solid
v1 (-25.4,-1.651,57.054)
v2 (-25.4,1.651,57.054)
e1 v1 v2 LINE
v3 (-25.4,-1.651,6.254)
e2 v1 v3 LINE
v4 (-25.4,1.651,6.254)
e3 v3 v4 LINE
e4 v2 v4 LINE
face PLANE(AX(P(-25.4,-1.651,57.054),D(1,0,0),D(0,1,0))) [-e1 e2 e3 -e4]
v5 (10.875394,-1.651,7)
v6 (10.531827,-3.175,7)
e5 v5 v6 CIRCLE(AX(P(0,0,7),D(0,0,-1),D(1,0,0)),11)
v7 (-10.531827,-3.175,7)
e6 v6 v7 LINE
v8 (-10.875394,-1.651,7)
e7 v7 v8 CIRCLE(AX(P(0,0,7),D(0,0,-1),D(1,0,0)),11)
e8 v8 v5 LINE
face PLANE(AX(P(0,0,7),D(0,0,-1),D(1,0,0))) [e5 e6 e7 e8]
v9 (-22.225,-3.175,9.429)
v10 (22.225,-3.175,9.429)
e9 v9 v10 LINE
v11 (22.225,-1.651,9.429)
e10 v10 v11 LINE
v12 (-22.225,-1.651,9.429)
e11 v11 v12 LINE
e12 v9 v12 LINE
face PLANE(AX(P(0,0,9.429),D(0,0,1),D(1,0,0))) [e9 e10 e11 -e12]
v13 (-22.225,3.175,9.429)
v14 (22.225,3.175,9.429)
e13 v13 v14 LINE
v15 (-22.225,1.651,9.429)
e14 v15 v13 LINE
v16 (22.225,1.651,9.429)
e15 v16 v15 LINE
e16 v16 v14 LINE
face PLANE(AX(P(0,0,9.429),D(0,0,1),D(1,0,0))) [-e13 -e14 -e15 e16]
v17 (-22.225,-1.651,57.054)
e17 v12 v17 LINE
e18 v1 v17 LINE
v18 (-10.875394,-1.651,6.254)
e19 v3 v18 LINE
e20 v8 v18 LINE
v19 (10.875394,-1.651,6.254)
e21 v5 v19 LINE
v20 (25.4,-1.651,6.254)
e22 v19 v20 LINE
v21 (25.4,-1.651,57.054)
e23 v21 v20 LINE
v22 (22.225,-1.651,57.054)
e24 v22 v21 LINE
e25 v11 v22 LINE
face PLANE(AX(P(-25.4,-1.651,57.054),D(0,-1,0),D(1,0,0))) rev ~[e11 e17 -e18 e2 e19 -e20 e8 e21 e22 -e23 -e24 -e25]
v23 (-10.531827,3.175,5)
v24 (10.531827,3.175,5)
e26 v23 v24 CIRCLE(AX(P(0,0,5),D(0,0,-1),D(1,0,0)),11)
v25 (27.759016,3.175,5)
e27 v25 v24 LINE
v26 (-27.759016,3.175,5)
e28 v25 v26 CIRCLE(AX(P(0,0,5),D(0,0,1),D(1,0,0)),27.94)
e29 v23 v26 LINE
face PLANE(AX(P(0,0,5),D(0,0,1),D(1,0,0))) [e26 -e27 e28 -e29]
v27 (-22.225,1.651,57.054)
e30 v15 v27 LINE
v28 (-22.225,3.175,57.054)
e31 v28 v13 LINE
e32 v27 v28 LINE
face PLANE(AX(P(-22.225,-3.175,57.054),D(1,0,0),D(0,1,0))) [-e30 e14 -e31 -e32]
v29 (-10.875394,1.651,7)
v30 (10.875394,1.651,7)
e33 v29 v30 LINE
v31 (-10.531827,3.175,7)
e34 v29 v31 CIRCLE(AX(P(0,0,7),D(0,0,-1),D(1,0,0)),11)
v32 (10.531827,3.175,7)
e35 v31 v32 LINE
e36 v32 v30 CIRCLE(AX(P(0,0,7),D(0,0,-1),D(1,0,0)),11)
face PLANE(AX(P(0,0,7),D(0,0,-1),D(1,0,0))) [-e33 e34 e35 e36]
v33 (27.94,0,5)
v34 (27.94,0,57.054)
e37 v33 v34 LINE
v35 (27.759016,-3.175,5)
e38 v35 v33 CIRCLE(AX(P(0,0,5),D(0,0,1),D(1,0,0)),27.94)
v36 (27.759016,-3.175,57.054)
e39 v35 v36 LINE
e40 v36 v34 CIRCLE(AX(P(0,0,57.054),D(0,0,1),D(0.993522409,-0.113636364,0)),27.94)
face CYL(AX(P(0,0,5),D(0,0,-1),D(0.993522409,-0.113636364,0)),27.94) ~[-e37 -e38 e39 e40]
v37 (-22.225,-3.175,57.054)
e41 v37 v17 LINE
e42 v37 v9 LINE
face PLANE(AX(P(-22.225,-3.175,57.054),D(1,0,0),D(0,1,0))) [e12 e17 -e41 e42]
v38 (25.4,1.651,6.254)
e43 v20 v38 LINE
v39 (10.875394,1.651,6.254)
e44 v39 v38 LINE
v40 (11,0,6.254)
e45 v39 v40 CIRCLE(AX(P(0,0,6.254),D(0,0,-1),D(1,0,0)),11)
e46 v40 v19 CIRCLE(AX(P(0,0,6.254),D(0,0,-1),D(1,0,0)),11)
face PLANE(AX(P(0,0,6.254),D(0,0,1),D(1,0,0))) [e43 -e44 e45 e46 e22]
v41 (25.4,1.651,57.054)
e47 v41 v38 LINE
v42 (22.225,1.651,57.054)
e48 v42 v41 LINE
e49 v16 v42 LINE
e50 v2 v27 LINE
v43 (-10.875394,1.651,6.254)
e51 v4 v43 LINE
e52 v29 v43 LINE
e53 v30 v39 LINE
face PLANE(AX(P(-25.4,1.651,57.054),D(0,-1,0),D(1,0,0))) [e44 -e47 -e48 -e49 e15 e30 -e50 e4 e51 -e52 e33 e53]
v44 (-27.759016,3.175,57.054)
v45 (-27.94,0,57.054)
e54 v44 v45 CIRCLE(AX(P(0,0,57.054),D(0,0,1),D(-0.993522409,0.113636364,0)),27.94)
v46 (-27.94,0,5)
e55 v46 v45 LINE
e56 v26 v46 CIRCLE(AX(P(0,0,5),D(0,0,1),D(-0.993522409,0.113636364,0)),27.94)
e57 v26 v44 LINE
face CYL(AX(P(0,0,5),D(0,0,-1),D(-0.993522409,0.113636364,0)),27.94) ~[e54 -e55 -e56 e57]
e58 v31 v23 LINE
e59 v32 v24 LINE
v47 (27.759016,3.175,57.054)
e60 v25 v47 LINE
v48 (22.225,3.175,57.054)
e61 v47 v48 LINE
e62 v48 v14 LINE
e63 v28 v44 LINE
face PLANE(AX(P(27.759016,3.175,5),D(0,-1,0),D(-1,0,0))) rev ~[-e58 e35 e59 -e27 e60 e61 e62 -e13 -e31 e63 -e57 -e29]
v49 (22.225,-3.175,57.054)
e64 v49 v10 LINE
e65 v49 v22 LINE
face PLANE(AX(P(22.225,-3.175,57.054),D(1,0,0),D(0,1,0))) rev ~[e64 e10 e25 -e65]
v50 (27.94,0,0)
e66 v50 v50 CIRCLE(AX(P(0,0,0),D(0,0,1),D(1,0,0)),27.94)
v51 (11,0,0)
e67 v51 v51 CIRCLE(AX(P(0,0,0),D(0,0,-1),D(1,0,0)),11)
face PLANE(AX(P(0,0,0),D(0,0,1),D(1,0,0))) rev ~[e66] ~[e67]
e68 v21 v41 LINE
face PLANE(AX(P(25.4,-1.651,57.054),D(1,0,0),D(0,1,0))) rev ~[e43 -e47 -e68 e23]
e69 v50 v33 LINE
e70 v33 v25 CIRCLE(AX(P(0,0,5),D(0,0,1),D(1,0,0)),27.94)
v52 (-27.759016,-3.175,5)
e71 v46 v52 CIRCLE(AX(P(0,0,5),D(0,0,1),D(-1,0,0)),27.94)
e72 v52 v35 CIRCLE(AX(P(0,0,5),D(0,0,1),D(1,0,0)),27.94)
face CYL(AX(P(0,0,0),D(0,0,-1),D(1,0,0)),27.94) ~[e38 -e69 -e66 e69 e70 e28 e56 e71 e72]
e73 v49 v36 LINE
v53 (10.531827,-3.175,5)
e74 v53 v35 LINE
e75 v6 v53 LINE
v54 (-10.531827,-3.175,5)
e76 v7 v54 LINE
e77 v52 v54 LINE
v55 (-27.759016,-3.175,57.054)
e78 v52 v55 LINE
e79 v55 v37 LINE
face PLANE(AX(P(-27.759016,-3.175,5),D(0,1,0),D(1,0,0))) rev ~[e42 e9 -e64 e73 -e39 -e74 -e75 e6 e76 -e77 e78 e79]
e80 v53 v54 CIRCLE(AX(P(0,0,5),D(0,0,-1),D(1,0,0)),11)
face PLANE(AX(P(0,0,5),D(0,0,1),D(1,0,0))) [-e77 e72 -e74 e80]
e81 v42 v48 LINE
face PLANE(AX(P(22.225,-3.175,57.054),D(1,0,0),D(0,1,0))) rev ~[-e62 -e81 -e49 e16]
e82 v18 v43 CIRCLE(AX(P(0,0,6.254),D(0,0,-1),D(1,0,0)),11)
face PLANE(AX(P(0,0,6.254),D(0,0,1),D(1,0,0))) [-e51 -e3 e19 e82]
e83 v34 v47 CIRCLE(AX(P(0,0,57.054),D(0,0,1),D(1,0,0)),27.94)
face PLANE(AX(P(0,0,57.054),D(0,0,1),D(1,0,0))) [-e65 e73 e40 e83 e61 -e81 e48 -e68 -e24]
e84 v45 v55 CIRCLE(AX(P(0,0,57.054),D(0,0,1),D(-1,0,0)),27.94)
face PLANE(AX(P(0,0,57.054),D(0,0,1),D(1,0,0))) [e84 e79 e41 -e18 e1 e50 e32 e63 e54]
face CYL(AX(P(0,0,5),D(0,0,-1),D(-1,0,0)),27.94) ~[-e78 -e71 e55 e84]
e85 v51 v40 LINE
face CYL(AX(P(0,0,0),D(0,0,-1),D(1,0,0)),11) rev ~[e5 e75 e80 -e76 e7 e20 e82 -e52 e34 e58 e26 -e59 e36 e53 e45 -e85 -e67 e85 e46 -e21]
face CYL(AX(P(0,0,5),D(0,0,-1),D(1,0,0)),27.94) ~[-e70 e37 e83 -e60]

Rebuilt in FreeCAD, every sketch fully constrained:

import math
import FreeCAD as App
import Part
import Sketcher
Q = App.Units.Quantity

doc = App.newDocument("Part")
body = doc.addObject("PartDesign::Body", "Body")

# Sketch on XY plane
sketch1 = doc.addObject("Sketcher::SketchObject", "Sketch")
body.addObject(sketch1)
sketch1.AttachmentSupport = (doc.XY_Plane, [""])
sketch1.MapMode = "FlatFace"
sketch1.addGeometry(Part.Circle(App.Vector(0, 0, 0), App.Vector(0, 0, 1), 28), False)
sketch1.addConstraint(Sketcher.Constraint("Coincident", 0, 3, -1, 1))
sketch1.addConstraint(Sketcher.Constraint("Diameter", 0, Q("2.2 in")))
pad1 = doc.addObject("PartDesign::Pad", "Pad")
body.addObject(pad1)
pad1.Profile = sketch1
pad1.Length = 5

# Sketch on XY plane
sketch2 = doc.addObject("Sketcher::SketchObject", "Sketch001")
body.addObject(sketch2)
sketch2.AttachmentSupport = (doc.XY_Plane, [""])
sketch2.MapMode = "FlatFace"
sketch2.AttachmentOffset = App.Placement(App.Vector(0, 0, 5), App.Rotation())
sketch2.addGeometry(Part.ArcOfCircle(Part.Circle(App.Vector(0, 0, 0), App.Vector(0, 0, 1), 27.9), math.radians(0), math.radians(6.52)), False)
sketch2.addGeometry(Part.LineSegment(App.Vector(27.8, 3.2, 0), App.Vector(-27.8, 3.2, 0)), False)
sketch2.addGeometry(Part.ArcOfCircle(Part.Circle(App.Vector(0, 0, 0), App.Vector(0, 0, 1), 27.9), math.radians(173.48), math.radians(180)), False)
sketch2.addGeometry(Part.ArcOfCircle(Part.Circle(App.Vector(0, 0, 0), App.Vector(0, 0, 1), 27.9), math.radians(180), math.radians(186.52)), False)
sketch2.addGeometry(Part.LineSegment(App.Vector(-27.8, -3.2, 0), App.Vector(27.8, -3.2, 0)), False)
sketch2.addGeometry(Part.ArcOfCircle(Part.Circle(App.Vector(0, 0, 0), App.Vector(0, 0, 1), 27.9), math.radians(-6.52), math.radians(0)), False)
sketch2.addConstraint(Sketcher.Constraint("Coincident", 0, 2, 1, 1))
sketch2.addConstraint(Sketcher.Constraint("Coincident", 1, 2, 2, 1))
sketch2.addConstraint(Sketcher.Constraint("Tangent", 2, 2, 3, 1))
sketch2.addConstraint(Sketcher.Constraint("Coincident", 3, 2, 4, 1))
sketch2.addConstraint(Sketcher.Constraint("Coincident", 4, 2, 5, 1))
sketch2.addConstraint(Sketcher.Constraint("Tangent", 5, 2, 0, 1))
sketch2.addConstraint(Sketcher.Constraint("Horizontal", 1))
sketch2.addConstraint(Sketcher.Constraint("Horizontal", 4))
sketch2.addConstraint(Sketcher.Constraint("Coincident", 0, 3, -1, 1))
sketch2.addConstraint(Sketcher.Constraint("Coincident", 2, 3, -1, 1))
sketch2.addConstraint(Sketcher.Constraint("Equal", 0, 2))
sketch2.addConstraint(Sketcher.Constraint("Equal", 2, 3))
sketch2.addConstraint(Sketcher.Constraint("Equal", 3, 5))
sketch2.addConstraint(Sketcher.Constraint("PointOnObject", 2, 2, -1))
sketch2.addConstraint(Sketcher.Constraint("PointOnObject", 5, 2, -1))
sketch2.addConstraint(Sketcher.Constraint("Vertical", 1, 2, 3, 2))
sketch2.addConstraint(Sketcher.Constraint("Radius", 0, Q("1.1 in")))
sketch2.addConstraint(Sketcher.Constraint("DistanceY", 3, 2, 1, 2, Q("0.25 in")))
pad2 = doc.addObject("PartDesign::Pad", "Pad001")
body.addObject(pad2)
pad2.Profile = sketch2
pad2.Length = 52.054

# Sketch on XY plane
sketch3 = doc.addObject("Sketcher::SketchObject", "Sketch002")
body.addObject(sketch3)
sketch3.AttachmentSupport = (doc.XY_Plane, [""])
sketch3.MapMode = "FlatFace"
sketch3.AttachmentOffset = App.Placement(App.Vector(0, 0, 57.054), App.Rotation())
sketch3.addGeometry(Part.LineSegment(App.Vector(-25.4, 1.7, 0), App.Vector(-25.4, -1.7, 0)), False)
sketch3.addGeometry(Part.LineSegment(App.Vector(-25.4, -1.7, 0), App.Vector(25.4, -1.7, 0)), False)
sketch3.addGeometry(Part.LineSegment(App.Vector(25.4, -1.7, 0), App.Vector(25.4, 1.7, 0)), False)
sketch3.addGeometry(Part.LineSegment(App.Vector(25.4, 1.7, 0), App.Vector(-25.4, 1.7, 0)), False)
sketch3.addConstraint(Sketcher.Constraint("Coincident", 0, 2, 1, 1))
sketch3.addConstraint(Sketcher.Constraint("Coincident", 1, 2, 2, 1))
sketch3.addConstraint(Sketcher.Constraint("Coincident", 2, 2, 3, 1))
sketch3.addConstraint(Sketcher.Constraint("Coincident", 3, 2, 0, 1))
sketch3.addConstraint(Sketcher.Constraint("Vertical", 0))
sketch3.addConstraint(Sketcher.Constraint("Horizontal", 1))
sketch3.addConstraint(Sketcher.Constraint("Vertical", 2))
sketch3.addConstraint(Sketcher.Constraint("Horizontal", 3))
sketch3.addConstraint(Sketcher.Constraint("Symmetric", 0, 2, 2, 2, -1, 1))
sketch3.addConstraint(Sketcher.Constraint("DistanceX", 1, 1, 1, 2, Q("2 in")))
sketch3.addConstraint(Sketcher.Constraint("DistanceY", 0, 2, 0, 1, Q("0.13 in")))
pocket1 = doc.addObject("PartDesign::Pocket", "Pocket")
body.addObject(pocket1)
pocket1.Profile = sketch3
pocket1.Length = Q("2 in")

# Sketch on XY plane
sketch4 = doc.addObject("Sketcher::SketchObject", "Sketch003")
body.addObject(sketch4)
sketch4.AttachmentSupport = (doc.XY_Plane, [""])
sketch4.MapMode = "FlatFace"
sketch4.AttachmentOffset = App.Placement(App.Vector(0, 0, 57.054), App.Rotation())
sketch4.addGeometry(Part.LineSegment(App.Vector(-22, 3, 0), App.Vector(-22, -3, 0)), False)
sketch4.addGeometry(Part.LineSegment(App.Vector(-22, -3, 0), App.Vector(22, -3, 0)), False)
sketch4.addGeometry(Part.LineSegment(App.Vector(22, -3, 0), App.Vector(22, 3, 0)), False)
sketch4.addGeometry(Part.LineSegment(App.Vector(22, 3, 0), App.Vector(-22, 3, 0)), False)
sketch4.addConstraint(Sketcher.Constraint("Coincident", 0, 2, 1, 1))
sketch4.addConstraint(Sketcher.Constraint("Coincident", 1, 2, 2, 1))
sketch4.addConstraint(Sketcher.Constraint("Coincident", 2, 2, 3, 1))
sketch4.addConstraint(Sketcher.Constraint("Coincident", 3, 2, 0, 1))
sketch4.addConstraint(Sketcher.Constraint("Vertical", 0))
sketch4.addConstraint(Sketcher.Constraint("Horizontal", 1))
sketch4.addConstraint(Sketcher.Constraint("Vertical", 2))
sketch4.addConstraint(Sketcher.Constraint("Horizontal", 3))
sketch4.addConstraint(Sketcher.Constraint("Symmetric", 0, 2, 2, 2, -1, 1))
sketch4.addConstraint(Sketcher.Constraint("DistanceX", 1, 1, 1, 2, Q("1.75 in")))
sketch4.addConstraint(Sketcher.Constraint("DistanceY", 0, 2, 0, 1, Q("0.25 in")))
pocket2 = doc.addObject("PartDesign::Pocket", "Pocket001")
body.addObject(pocket2)
pocket2.Profile = sketch4
pocket2.Length = Q("1.875 in")

# Sketch on XY plane
sketch5 = doc.addObject("Sketcher::SketchObject", "Sketch004")
body.addObject(sketch5)
sketch5.AttachmentSupport = (doc.XY_Plane, [""])
sketch5.MapMode = "FlatFace"
sketch5.addGeometry(Part.Circle(App.Vector(0, 0, 0), App.Vector(0, 0, 1), 11), False)
sketch5.addConstraint(Sketcher.Constraint("Coincident", 0, 3, -1, 1))
sketch5.addConstraint(Sketcher.Constraint("Diameter", 0, Q("22 mm")))
pocket3 = doc.addObject("PartDesign::Pocket", "Pocket002")
body.addObject(pocket3)
pocket3.Profile = sketch5
pocket3.Length = 7
pocket3.Reversed = True

doc.recompute()
